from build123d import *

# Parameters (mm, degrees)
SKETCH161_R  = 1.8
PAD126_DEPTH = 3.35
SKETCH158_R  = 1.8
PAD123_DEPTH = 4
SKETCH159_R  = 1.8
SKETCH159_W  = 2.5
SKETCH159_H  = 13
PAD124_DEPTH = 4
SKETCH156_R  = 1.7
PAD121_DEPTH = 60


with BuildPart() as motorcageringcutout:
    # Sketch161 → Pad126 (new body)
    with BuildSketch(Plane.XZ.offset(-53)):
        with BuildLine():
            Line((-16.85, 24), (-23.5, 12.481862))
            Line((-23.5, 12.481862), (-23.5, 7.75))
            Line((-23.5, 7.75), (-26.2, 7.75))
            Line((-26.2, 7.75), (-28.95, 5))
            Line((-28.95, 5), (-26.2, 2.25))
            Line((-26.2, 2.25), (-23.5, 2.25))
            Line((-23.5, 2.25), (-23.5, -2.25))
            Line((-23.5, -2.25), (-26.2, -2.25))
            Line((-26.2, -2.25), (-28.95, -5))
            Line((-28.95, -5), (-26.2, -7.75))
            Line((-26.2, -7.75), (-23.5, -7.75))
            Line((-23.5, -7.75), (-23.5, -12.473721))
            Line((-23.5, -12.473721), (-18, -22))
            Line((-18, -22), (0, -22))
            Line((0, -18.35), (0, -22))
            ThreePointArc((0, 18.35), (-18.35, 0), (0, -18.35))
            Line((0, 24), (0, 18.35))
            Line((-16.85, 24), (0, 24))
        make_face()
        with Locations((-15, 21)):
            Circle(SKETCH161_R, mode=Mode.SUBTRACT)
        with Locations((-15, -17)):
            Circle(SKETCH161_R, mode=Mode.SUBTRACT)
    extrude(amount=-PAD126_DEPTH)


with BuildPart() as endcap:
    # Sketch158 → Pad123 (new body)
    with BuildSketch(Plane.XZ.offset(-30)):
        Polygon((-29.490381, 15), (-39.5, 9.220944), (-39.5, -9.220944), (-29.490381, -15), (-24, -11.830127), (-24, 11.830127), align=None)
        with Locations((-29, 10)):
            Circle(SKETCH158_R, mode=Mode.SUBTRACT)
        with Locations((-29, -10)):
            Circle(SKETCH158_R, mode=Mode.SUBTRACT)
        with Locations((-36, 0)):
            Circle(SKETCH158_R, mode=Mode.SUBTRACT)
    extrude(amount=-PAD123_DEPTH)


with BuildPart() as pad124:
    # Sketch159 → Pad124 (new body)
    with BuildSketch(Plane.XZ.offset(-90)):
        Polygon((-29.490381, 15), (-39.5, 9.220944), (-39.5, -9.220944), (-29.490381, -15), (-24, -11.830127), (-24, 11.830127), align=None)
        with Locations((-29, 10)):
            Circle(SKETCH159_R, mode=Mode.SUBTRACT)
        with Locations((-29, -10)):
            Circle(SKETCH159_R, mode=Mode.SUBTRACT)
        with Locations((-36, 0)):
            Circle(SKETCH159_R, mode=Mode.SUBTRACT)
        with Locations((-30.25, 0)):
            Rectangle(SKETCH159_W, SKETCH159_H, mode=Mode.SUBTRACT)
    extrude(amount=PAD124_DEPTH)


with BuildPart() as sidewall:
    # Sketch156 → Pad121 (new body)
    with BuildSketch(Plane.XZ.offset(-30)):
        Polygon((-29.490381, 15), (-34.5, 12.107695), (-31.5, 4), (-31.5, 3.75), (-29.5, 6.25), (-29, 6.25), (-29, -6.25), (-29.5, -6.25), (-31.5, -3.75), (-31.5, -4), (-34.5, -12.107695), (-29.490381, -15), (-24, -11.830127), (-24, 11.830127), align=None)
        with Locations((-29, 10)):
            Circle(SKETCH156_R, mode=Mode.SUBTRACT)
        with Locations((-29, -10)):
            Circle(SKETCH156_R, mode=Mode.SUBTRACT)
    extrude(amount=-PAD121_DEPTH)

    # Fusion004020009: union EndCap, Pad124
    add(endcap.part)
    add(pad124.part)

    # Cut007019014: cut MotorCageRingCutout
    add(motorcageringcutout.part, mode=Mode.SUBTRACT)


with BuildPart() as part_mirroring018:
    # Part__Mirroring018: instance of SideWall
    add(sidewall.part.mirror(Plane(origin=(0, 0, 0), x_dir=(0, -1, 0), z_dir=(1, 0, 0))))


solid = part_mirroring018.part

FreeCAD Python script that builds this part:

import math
import FreeCAD as App
import Part
import Sketcher

V = App.Vector
Q = App.Units.Quantity

doc = App.newDocument("Part")
body = doc.addObject("PartDesign::Body", "Body")

sketch1 = doc.addObject("Sketcher::SketchObject", "Sketch")
body.addObject(sketch1)
sketch1.AttachmentSupport = (doc.XZ_Plane, [""])
sketch1.MapMode = "FlatFace"
sketch1.AttachmentOffset = App.Placement(V(0, 0, -53), App.Rotation())
sketch1.addGeometry(Part.LineSegment(V(-16.9, 24, 0), V(-23.5, 12.5, 0)), False)
sketch1.addGeometry(Part.LineSegment(V(-23.5, 12.5, 0), V(-23.5, 7.8, 0)), False)
sketch1.addGeometry(Part.LineSegment(V(-23.5, 7.8, 0), V(-26.2, 7.8, 0)), False)
sketch1.addGeometry(Part.LineSegment(V(-26.2, 7.8, 0), V(-28.9, 5, 0)), False)
sketch1.addGeometry(Part.LineSegment(V(-28.9, 5, 0), V(-26.2, 2.2, 0)), False)
sketch1.addGeometry(Part.LineSegment(V(-26.2, 2.2, 0), V(-23.5, 2.2, 0)), False)
sketch1.addGeometry(Part.LineSegment(V(-23.5, 2.2, 0), V(-23.5, -2.2, 0)), False)
sketch1.addGeometry(Part.LineSegment(V(-23.5, -2.2, 0), V(-26.2, -2.2, 0)), False)
sketch1.addGeometry(Part.LineSegment(V(-26.2, -2.2, 0), V(-28.9, -5, 0)), False)
sketch1.addGeometry(Part.LineSegment(V(-28.9, -5, 0), V(-26.2, -7.8, 0)), False)
sketch1.addGeometry(Part.LineSegment(V(-26.2, -7.8, 0), V(-23.5, -7.8, 0)), False)
sketch1.addGeometry(Part.LineSegment(V(-23.5, -7.8, 0), V(-23.5, -12.5, 0)), False)
sketch1.addGeometry(Part.LineSegment(V(-23.5, -12.5, 0), V(-18, -22, 0)), False)
sketch1.addGeometry(Part.LineSegment(V(-18, -22, 0), V(0, -22, 0)), False)
sketch1.addGeometry(Part.LineSegment(V(0, -22, 0), V(0, -18.4, 0)), False)
sketch1.addGeometry(Part.ArcOfCircle(Part.Circle(V(0, 0, 0), V(0, 0, 1), 18.4), math.radians(90), math.radians(270)), False)
sketch1.addGeometry(Part.LineSegment(V(0, 18.4, 0), V(0, 24, 0)), False)
sketch1.addGeometry(Part.LineSegment(V(0, 24, 0), V(-16.9, 24, 0)), False)
sketch1.addGeometry(Part.Circle(V(-15, -17, 0), V(0, 0, 1), 1.8), False)
sketch1.addGeometry(Part.Circle(V(-15, 21, 0), V(0, 0, 1), 1.8), False)
sketch1.addConstraint(Sketcher.Constraint("Coincident", 0, 2, 1, 1))
sketch1.addConstraint(Sketcher.Constraint("Coincident", 1, 2, 2, 1))
sketch1.addConstraint(Sketcher.Constraint("Coincident", 2, 2, 3, 1))
sketch1.addConstraint(Sketcher.Constraint("Coincident", 3, 2, 4, 1))
sketch1.addConstraint(Sketcher.Constraint("Coincident", 4, 2, 5, 1))
sketch1.addConstraint(Sketcher.Constraint("Coincident", 5, 2, 6, 1))
sketch1.addConstraint(Sketcher.Constraint("Coincident", 6, 2, 7, 1))
sketch1.addConstraint(Sketcher.Constraint("Coincident", 7, 2, 8, 1))
sketch1.addConstraint(Sketcher.Constraint("Coincident", 8, 2, 9, 1))
sketch1.addConstraint(Sketcher.Constraint("Coincident", 9, 2, 10, 1))
sketch1.addConstraint(Sketcher.Constraint("Coincident", 10, 2, 11, 1))
sketch1.addConstraint(Sketcher.Constraint("Coincident", 11, 2, 12, 1))
sketch1.addConstraint(Sketcher.Constraint("Coincident", 12, 2, 13, 1))
sketch1.addConstraint(Sketcher.Constraint("Coincident", 13, 2, 14, 1))
sketch1.addConstraint(Sketcher.Constraint("Coincident", 14, 2, 15, 2))
sketch1.addConstraint(Sketcher.Constraint("Coincident", 15, 1, 16, 1))
sketch1.addConstraint(Sketcher.Constraint("Coincident", 16, 2, 17, 1))
sketch1.addConstraint(Sketcher.Constraint("Coincident", 17, 2, 0, 1))
sketch1.addConstraint(Sketcher.Constraint("Vertical", 1))
sketch1.addConstraint(Sketcher.Constraint("Horizontal", 2))
sketch1.addConstraint(Sketcher.Constraint("Horizontal", 5))
sketch1.addConstraint(Sketcher.Constraint("Vertical", 6))
sketch1.addConstraint(Sketcher.Constraint("Horizontal", 7))
sketch1.addConstraint(Sketcher.Constraint("Horizontal", 10))
sketch1.addConstraint(Sketcher.Constraint("Vertical", 11))
sketch1.addConstraint(Sketcher.Constraint("Horizontal", 13))
sketch1.addConstraint(Sketcher.Constraint("Vertical", 14))
sketch1.addConstraint(Sketcher.Constraint("Vertical", 16))
sketch1.addConstraint(Sketcher.Constraint("Horizontal", 17))
sketch1.addConstraint(Sketcher.Constraint("Coincident", 15, 3, -1, 1))
sketch1.addConstraint(Sketcher.Constraint("Equal", 18, 19))
sketch1.addConstraint(Sketcher.Constraint("Symmetric", 4, 2, 7, 2, -1))
sketch1.addConstraint(Sketcher.Constraint("Symmetric", 3, 2, 8, 2, -1))
sketch1.addConstraint(Sketcher.Constraint("Symmetric", 2, 2, 9, 2, -1))
sketch1.addConstraint(Sketcher.Constraint("PointOnObject", 13, 2, -2))
sketch1.addConstraint(Sketcher.Constraint("PointOnObject", 15, 1, -2))
sketch1.addConstraint(Sketcher.Constraint("Perpendicular", 3, 4))
sketch1.addConstraint(Sketcher.Constraint("Perpendicular", 4, 8))
sketch1.addConstraint(Sketcher.Constraint("Vertical", 18, 3, 19, 3))
sketch1.addConstraint(Sketcher.Constraint("Vertical", 2, 2, 4, 2))
sketch1.addConstraint(Sketcher.Constraint("Vertical", 1, 2, 5, 2))
sketch1.addConstraint(Sketcher.Constraint("Vertical", 6, 2, 10, 2))
sketch1.addConstraint(Sketcher.Constraint("Diameter", 18, 3.6))
sketch1.addConstraint(Sketcher.Constraint("DistanceX", 13, 1, 13, 2, 18.0))
sketch1.addConstraint(Sketcher.Constraint("Angle", 0, Q("-120 deg")))
sketch1.addConstraint(Sketcher.Constraint("Angle", 12, Q("-59.999999 deg")))
sketch1.addConstraint(Sketcher.Constraint("Radius", 15, 18.35))
sketch1.addConstraint(Sketcher.Constraint("Distance", 12, 11.0))
sketch1.addConstraint(Sketcher.Constraint("DistanceX", 2, 2, 2, 1, 2.7))
sketch1.addConstraint(Sketcher.Constraint("DistanceY", 6, 2, 6, 1, 4.5))
sketch1.addConstraint(Sketcher.Constraint("DistanceX", 18, 3, -1, 1, 15.0))
sketch1.addConstraint(Sketcher.Constraint("DistanceY", 18, 3, -1, 1, 17.0))
sketch1.addConstraint(Sketcher.Constraint("DistanceY", -1, 1, 19, 3, 21.0))
sketch1.addConstraint(Sketcher.Constraint("DistanceY", -1, 1, 3, 2, 5.0))
sketch1.addConstraint(Sketcher.Constraint("DistanceY", 12, 2, -1, 1, 22.0))
sketch1.addConstraint(Sketcher.Constraint("DistanceY", -1, 1, 16, 2, 24.0))
sketch1.addConstraint(Sketcher.Constraint("Distance", 0, 13.3))
pad1 = doc.addObject("PartDesign::Pad", "Pad")
body.addObject(pad1)
pad1.Profile = sketch1
pad1.Length = 3.35
pad1.Reversed = True
body2 = doc.addObject("PartDesign::Body", "Body001")

sketch2 = doc.addObject("Sketcher::SketchObject", "Sketch001")
body2.addObject(sketch2)
sketch2.AttachmentSupport = (doc.getObject("XZ_Plane001"), [""])
sketch2.MapMode = "FlatFace"
sketch2.AttachmentOffset = App.Placement(V(0, 0, -30), App.Rotation())
sketch2.addGeometry(Part.LineSegment(V(-29.5, 15, 0), V(-39.5, 9.2, 0)), False)
sketch2.addGeometry(Part.LineSegment(V(-39.5, 9.2, 0), V(-39.5, -9.2, 0)), False)
sketch2.addGeometry(Part.LineSegment(V(-39.5, -9.2, 0), V(-29.5, -15, 0)), False)
sketch2.addGeometry(Part.LineSegment(V(-29.5, -15, 0), V(-24, -11.8, 0)), False)
sketch2.addGeometry(Part.LineSegment(V(-24, -11.8, 0), V(-24, 11.8, 0)), False)
sketch2.addGeometry(Part.LineSegment(V(-24, 11.8, 0), V(-29.5, 15, 0)), False)
sketch2.addGeometry(Part.Circle(V(-29, -10, 0), V(0, 0, 1), 1.8), False)
sketch2.addGeometry(Part.Circle(V(-36, 0, 0), V(0, 0, 1), 1.8), False)
sketch2.addGeometry(Part.Circle(V(-29, 10, 0), V(0, 0, 1), 1.8), False)
sketch2.addConstraint(Sketcher.Constraint("Coincident", 0, 2, 1, 1))
sketch2.addConstraint(Sketcher.Constraint("Coincident", 1, 2, 2, 1))
sketch2.addConstraint(Sketcher.Constraint("Coincident", 2, 2, 3, 1))
sketch2.addConstraint(Sketcher.Constraint("Coincident", 3, 2, 4, 1))
sketch2.addConstraint(Sketcher.Constraint("Coincident", 4, 2, 5, 1))
sketch2.addConstraint(Sketcher.Constraint("Coincident", 5, 2, 0, 1))
sketch2.addConstraint(Sketcher.Constraint("Vertical", 1))
sketch2.addConstraint(Sketcher.Constraint("Vertical", 4))
sketch2.addConstraint(Sketcher.Constraint("Equal", 6, 7))
sketch2.addConstraint(Sketcher.Constraint("Equal", 7, 8))
sketch2.addConstraint(Sketcher.Constraint("Symmetric", 6, 3, 8, 3, -1))
sketch2.addConstraint(Sketcher.Constraint("Symmetric", 2, 2, 5, 2, -1))
sketch2.addConstraint(Sketcher.Constraint("PointOnObject", 7, 3, -1))
sketch2.addConstraint(Sketcher.Constraint("Parallel", 0, 3))
sketch2.addConstraint(Sketcher.Constraint("Parallel", 2, 5))
sketch2.addConstraint(Sketcher.Constraint("Equal", 0, 2))
sketch2.addConstraint(Sketcher.Constraint("Diameter", 6, 3.6))
sketch2.addConstraint(Sketcher.Constraint("Angle", 0, Q("-150.000001 deg")))
sketch2.addConstraint(Sketcher.Constraint("DistanceX", 6, 3, -1, 1, 29.0))
sketch2.addConstraint(Sketcher.Constraint("DistanceY", 6, 3, -1, 1, 10.0))
sketch2.addConstraint(Sketcher.Constraint("DistanceX", 7, 3, -1, 1, 36.0))
sketch2.addConstraint(Sketcher.Constraint("DistanceY", 2, 2, -1, 1, 15.0))
sketch2.addConstraint(Sketcher.Constraint("DistanceX", 3, 2, -1, 1, 24.0))
sketch2.addConstraint(Sketcher.Constraint("DistanceX", 0, 2, -1, 1, 39.5))
sketch2.addConstraint(Sketcher.Constraint("DistanceY", 1, 2, 1, 1, 18.441888))
pad2 = doc.addObject("PartDesign::Pad", "Pad001")
body2.addObject(pad2)
pad2.Profile = sketch2
pad2.Length = 4
pad2.Reversed = True
body3 = doc.addObject("PartDesign::Body", "Body002")

sketch3 = doc.addObject("Sketcher::SketchObject", "Sketch002")
body3.addObject(sketch3)
sketch3.AttachmentSupport = (doc.getObject("XZ_Plane002"), [""])
sketch3.MapMode = "FlatFace"
sketch3.AttachmentOffset = App.Placement(V(0, 0, -90), App.Rotation())
sketch3.addGeometry(Part.LineSegment(V(-29.5, 15, 0), V(-39.5, 9.2, 0)), False)
sketch3.addGeometry(Part.LineSegment(V(-39.5, 9.2, 0), V(-39.5, -9.2, 0)), False)
sketch3.addGeometry(Part.LineSegment(V(-39.5, -9.2, 0), V(-29.5, -15, 0)), False)
sketch3.addGeometry(Part.LineSegment(V(-29.5, -15, 0), V(-24, -11.8, 0)), False)
sketch3.addGeometry(Part.LineSegment(V(-24, -11.8, 0), V(-24, 11.8, 0)), False)
sketch3.addGeometry(Part.LineSegment(V(-24, 11.8, 0), V(-29.5, 15, 0)), False)
sketch3.addGeometry(Part.Circle(V(-29, -10, 0), V(0, 0, 1), 1.8), False)
sketch3.addGeometry(Part.Circle(V(-36, 0, 0), V(0, 0, 1), 1.8), False)
sketch3.addGeometry(Part.LineSegment(V(-29, -6.5, 0), V(-31.5, -6.5, 0)), False)
sketch3.addGeometry(Part.LineSegment(V(-31.5, -6.5, 0), V(-31.5, 6.5, 0)), False)
sketch3.addGeometry(Part.LineSegment(V(-31.5, 6.5, 0), V(-29, 6.5, 0)), False)
sketch3.addGeometry(Part.LineSegment(V(-29, 6.5, 0), V(-29, -6.5, 0)), False)
sketch3.addGeometry(Part.Circle(V(-29, 10, 0), V(0, 0, 1), 1.8), False)
sketch3.addConstraint(Sketcher.Constraint("Coincident", 0, 2, 1, 1))
sketch3.addConstraint(Sketcher.Constraint("Coincident", 1, 2, 2, 1))
sketch3.addConstraint(Sketcher.Constraint("Coincident", 2, 2, 3, 1))
sketch3.addConstraint(Sketcher.Constraint("Coincident", 3, 2, 4, 1))
sketch3.addConstraint(Sketcher.Constraint("Coincident", 4, 2, 5, 1))
sketch3.addConstraint(Sketcher.Constraint("Coincident", 5, 2, 0, 1))
sketch3.addConstraint(Sketcher.Constraint("Coincident", 8, 2, 9, 1))
sketch3.addConstraint(Sketcher.Constraint("Coincident", 9, 2, 10, 1))
sketch3.addConstraint(Sketcher.Constraint("Coincident", 10, 2, 11, 1))
sketch3.addConstraint(Sketcher.Constraint("Coincident", 11, 2, 8, 1))
sketch3.addConstraint(Sketcher.Constraint("Vertical", 1))
sketch3.addConstraint(Sketcher.Constraint("Vertical", 4))
sketch3.addConstraint(Sketcher.Constraint("Horizontal", 8))
sketch3.addConstraint(Sketcher.Constraint("Vertical", 9))
sketch3.addConstraint(Sketcher.Constraint("Horizontal", 10))
sketch3.addConstraint(Sketcher.Constraint("Vertical", 11))
sketch3.addConstraint(Sketcher.Constraint("Equal", 6, 7))
sketch3.addConstraint(Sketcher.Constraint("Equal", 7, 12))
sketch3.addConstraint(Sketcher.Constraint("Symmetric", 6, 3, 12, 3, -1))
sketch3.addConstraint(Sketcher.Constraint("Symmetric", 2, 2, 5, 2, -1))
sketch3.addConstraint(Sketcher.Constraint("PointOnObject", 7, 3, -1))
sketch3.addConstraint(Sketcher.Constraint("Parallel", 0, 3))
sketch3.addConstraint(Sketcher.Constraint("Parallel", 2, 5))
sketch3.addConstraint(Sketcher.Constraint("Vertical", 12, 3, 10, 2))
sketch3.addConstraint(Sketcher.Constraint("Equal", 0, 2))
sketch3.addConstraint(Sketcher.Constraint("Diameter", 6, 3.6))
sketch3.addConstraint(Sketcher.Constraint("DistanceY", 9, 1, 9, 2, 13.0))
sketch3.addConstraint(Sketcher.Constraint("Angle", 0, Q("-150.000001 deg")))
sketch3.addConstraint(Sketcher.Constraint("DistanceX", 8, 2, 8, 1, 2.5))
sketch3.addConstraint(Sketcher.Constraint("DistanceX", 6, 3, -1, 1, 29.0))
sketch3.addConstraint(Sketcher.Constraint("DistanceY", 6, 3, -1, 1, 10.0))
sketch3.addConstraint(Sketcher.Constraint("DistanceX", 7, 3, -1, 1, 36.0))
sketch3.addConstraint(Sketcher.Constraint("DistanceY", 2, 2, -1, 1, 15.0))
sketch3.addConstraint(Sketcher.Constraint("DistanceX", 3, 2, -1, 1, 24.0))
sketch3.addConstraint(Sketcher.Constraint("DistanceX", 1, 2, 8, 2, 8.0))
sketch3.addConstraint(Sketcher.Constraint("DistanceY", 8, 2, -1, 1, 6.5))
sketch3.addConstraint(Sketcher.Constraint("DistanceY", 1, 2, 1, 1, 18.441888))
pad3 = doc.addObject("PartDesign::Pad", "Pad002")
body3.addObject(pad3)
pad3.Profile = sketch3
pad3.Length = 4
body4 = doc.addObject("PartDesign::Body", "Body003")

sketch4 = doc.addObject("Sketcher::SketchObject", "Sketch003")
body4.addObject(sketch4)
sketch4.AttachmentSupport = (doc.getObject("XZ_Plane003"), [""])
sketch4.MapMode = "FlatFace"
sketch4.AttachmentOffset = App.Placement(V(0, 0, -30), App.Rotation())
sketch4.addGeometry(Part.LineSegment(V(-29.49, 15, 0), V(-34.5, 12.11, 0)), False)
sketch4.addGeometry(Part.LineSegment(V(-34.5, 12.11, 0), V(-31.5, 4, 0)), False)
sketch4.addGeometry(Part.LineSegment(V(-31.5, 4, 0), V(-31.5, 3.75, 0)), False)
sketch4.addGeometry(Part.LineSegment(V(-31.5, 3.75, 0), V(-29.5, 6.25, 0)), False)
sketch4.addGeometry(Part.LineSegment(V(-29.5, 6.25, 0), V(-29, 6.25, 0)), False)
sketch4.addGeometry(Part.LineSegment(V(-29, 6.25, 0), V(-29, -6.25, 0)), False)
sketch4.addGeometry(Part.LineSegment(V(-29, -6.25, 0), V(-29.5, -6.25, 0)), False)
sketch4.addGeometry(Part.LineSegment(V(-29.5, -6.25, 0), V(-31.5, -3.75, 0)), False)
sketch4.addGeometry(Part.LineSegment(V(-31.5, -3.75, 0), V(-31.5, -4, 0)), False)
sketch4.addGeometry(Part.LineSegment(V(-31.5, -4, 0), V(-34.5, -12.11, 0)), False)
sketch4.addGeometry(Part.LineSegment(V(-34.5, -12.11, 0), V(-29.49, -15, 0)), False)
sketch4.addGeometry(Part.LineSegment(V(-29.49, -15, 0), V(-24, -11.83, 0)), False)
sketch4.addGeometry(Part.LineSegment(V(-24, -11.83, 0), V(-24, 11.83, 0)), False)
sketch4.addGeometry(Part.LineSegment(V(-24, 11.83, 0), V(-29.49, 15, 0)), False)
sketch4.addGeometry(Part.Circle(V(-29, -10, 0), V(0, 0, 1), 1.7), False)
sketch4.addGeometry(Part.Circle(V(-29, 10, 0), V(0, 0, 1), 1.7), False)
sketch4.addConstraint(Sketcher.Constraint("Coincident", 0, 2, 1, 1))
sketch4.addConstraint(Sketcher.Constraint("Coincident", 1, 2, 2, 1))
sketch4.addConstraint(Sketcher.Constraint("Coincident", 2, 2, 3, 1))
sketch4.addConstraint(Sketcher.Constraint("Coincident", 3, 2, 4, 1))
sketch4.addConstraint(Sketcher.Constraint("Coincident", 4, 2, 5, 1))
sketch4.addConstraint(Sketcher.Constraint("Coincident", 5, 2, 6, 1))
sketch4.addConstraint(Sketcher.Constraint("Coincident", 6, 2, 7, 1))
sketch4.addConstraint(Sketcher.Constraint("Coincident", 7, 2, 8, 1))
sketch4.addConstraint(Sketcher.Constraint("Coincident", 8, 2, 9, 1))
sketch4.addConstraint(Sketcher.Constraint("Coincident", 9, 2, 10, 1))
sketch4.addConstraint(Sketcher.Constraint("Coincident", 10, 2, 11, 1))
sketch4.addConstraint(Sketcher.Constraint("Coincident", 11, 2, 12, 1))
sketch4.addConstraint(Sketcher.Constraint("Coincident", 12, 2, 13, 1))
sketch4.addConstraint(Sketcher.Constraint("Coincident", 13, 2, 0, 1))
sketch4.addConstraint(Sketcher.Constraint("Vertical", 2))
sketch4.addConstraint(Sketcher.Constraint("Horizontal", 4))
sketch4.addConstraint(Sketcher.Constraint("Vertical", 5))
sketch4.addConstraint(Sketcher.Constraint("Horizontal", 6))
sketch4.addConstraint(Sketcher.Constraint("Vertical", 8))
sketch4.addConstraint(Sketcher.Constraint("Vertical", 12))
sketch4.addConstraint(Sketcher.Constraint("Equal", 14, 15))
sketch4.addConstraint(Sketcher.Constraint("Symmetric", 14, 3, 15, 3, -1))
sketch4.addConstraint(Sketcher.Constraint("Symmetric", 3, 2, 6, 2, -1))
sketch4.addConstraint(Sketcher.Constraint("Symmetric", 2, 2, 7, 2, -1))
sketch4.addConstraint(Sketcher.Constraint("Symmetric", 0, 2, 9, 2, -1))
sketch4.addConstraint(Sketcher.Constraint("Symmetric", 10, 2, 13, 2, -1))
sketch4.addConstraint(Sketcher.Constraint("Parallel", 0, 11))
sketch4.addConstraint(Sketcher.Constraint("Parallel", 10, 13))
sketch4.addConstraint(Sketcher.Constraint("Vertical", 15, 3, 4, 2))
sketch4.addConstraint(Sketcher.Constraint("Equal", 2, 8))
sketch4.addConstraint(Sketcher.Constraint("Diameter", 14, 3.4))
sketch4.addConstraint(Sketcher.Constraint("Angle", 0, Q("-149.999999 deg")))
sketch4.addConstraint(Sketcher.Constraint("DistanceX", 4, 1, 4, 2, 0.5))
sketch4.addConstraint(Sketcher.Constraint("DistanceY", 5, 2, 5, 1, 12.5))
sketch4.addConstraint(Sketcher.Constraint("DistanceX", 14, 3, -1, 1, 29.0))
sketch4.addConstraint(Sketcher.Constraint("DistanceY", 14, 3, -1, 1, 10.0))
sketch4.addConstraint(Sketcher.Constraint("DistanceY", -1, 1, 1, 2, 4.0))
sketch4.addConstraint(Sketcher.Constraint("DistanceY", 10, 2, -1, 1, 15.0))
sketch4.addConstraint(Sketcher.Constraint("DistanceX", 11, 2, -1, 1, 24.0))
sketch4.addConstraint(Sketcher.Constraint("DistanceX", 0, 2, 1, 2, 3.0))
sketch4.addConstraint(Sketcher.Constraint("DistanceX", 1, 2, 3, 2, 2.0))
sketch4.addConstraint(Sketcher.Constraint("DistanceY", 5, 2, 2, 2, 10.0))
sketch4.addConstraint(Sketcher.Constraint("Distance", 0, 5.78461))
pad4 = doc.addObject("PartDesign::Pad", "Pad003")
body4.addObject(pad4)
pad4.Profile = sketch4
pad4.Length = 60
pad4.Reversed = True
doc.recompute()

boolean = doc.addObject("PartDesign::Boolean", "Boolean")
body4.addObject(boolean)
boolean.Type = "Fuse"
boolean.addObjects([body2])
doc.recompute()

boolean2 = doc.addObject("PartDesign::Boolean", "Boolean001")
body4.addObject(boolean2)
boolean2.Type = "Fuse"
boolean2.addObjects([body3])
doc.recompute()

boolean3 = doc.addObject("PartDesign::Boolean", "Boolean002")
body4.addObject(boolean3)
boolean3.Type = "Cut"
boolean3.addObjects([body])
body5 = doc.addObject("PartDesign::Body", "Body004")
doc.recompute()

mirroring = doc.addObject("Part::Mirroring", "Mirroring")
mirroring.Source = body4
mirroring.Base = V(0, 0, 0)
mirroring.Normal = V(1, 0, 0)
body5.BaseFeature = mirroring
doc.recompute()
body4.Visibility = False
mirroring.Visibility = False

doc.recompute()
